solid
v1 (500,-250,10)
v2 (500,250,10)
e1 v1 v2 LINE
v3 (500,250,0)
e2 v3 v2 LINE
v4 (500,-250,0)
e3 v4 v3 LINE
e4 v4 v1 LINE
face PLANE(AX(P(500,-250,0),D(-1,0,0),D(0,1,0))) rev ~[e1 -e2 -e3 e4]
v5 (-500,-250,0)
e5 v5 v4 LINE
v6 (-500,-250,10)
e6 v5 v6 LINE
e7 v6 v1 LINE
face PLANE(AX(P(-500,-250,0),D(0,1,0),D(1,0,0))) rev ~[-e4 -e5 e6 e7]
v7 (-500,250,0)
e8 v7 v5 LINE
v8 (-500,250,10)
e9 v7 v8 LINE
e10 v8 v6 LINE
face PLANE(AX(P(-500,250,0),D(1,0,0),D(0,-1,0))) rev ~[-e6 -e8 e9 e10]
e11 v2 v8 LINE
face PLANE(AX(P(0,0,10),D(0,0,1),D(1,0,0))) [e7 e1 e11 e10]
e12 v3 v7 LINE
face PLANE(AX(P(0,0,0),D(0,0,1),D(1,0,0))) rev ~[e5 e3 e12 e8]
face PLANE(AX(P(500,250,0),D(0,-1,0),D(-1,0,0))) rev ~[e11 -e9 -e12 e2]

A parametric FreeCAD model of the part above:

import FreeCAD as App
import Part
import Sketcher
from FreeCAD import Vector
Q = App.Units.Quantity

doc = App.newDocument("Part")
body = doc.addObject("PartDesign::Body", "Body")

# Sketch on XY plane
sketch1 = doc.addObject("Sketcher::SketchObject", "Sketch")
body.addObject(sketch1)
sketch1.AttachmentSupport = (doc.XY_Plane, [""])
sketch1.MapMode = "FlatFace"
sketch1.addGeometry(Part.LineSegment(Vector(500, -250, 0), Vector(500, 250, 0)), False)
sketch1.addGeometry(Part.LineSegment(Vector(500, 250, 0), Vector(-500, 250, 0)), False)
sketch1.addGeometry(Part.LineSegment(Vector(-500, 250, 0), Vector(-500, -250, 0)), False)
sketch1.addGeometry(Part.LineSegment(Vector(-500, -250, 0), Vector(500, -250, 0)), False)
sketch1.addConstraint(Sketcher.Constraint("Coincident", 0, 2, 1, 1))
sketch1.addConstraint(Sketcher.Constraint("Coincident", 1, 2, 2, 1))
sketch1.addConstraint(Sketcher.Constraint("Coincident", 2, 2, 3, 1))
sketch1.addConstraint(Sketcher.Constraint("Coincident", 3, 2, 0, 1))
sketch1.addConstraint(Sketcher.Constraint("Vertical", 0))
sketch1.addConstraint(Sketcher.Constraint("Horizontal", 1))
sketch1.addConstraint(Sketcher.Constraint("Vertical", 2))
sketch1.addConstraint(Sketcher.Constraint("Horizontal", 3))
sketch1.addConstraint(Sketcher.Constraint("Symmetric", 0, 2, 2, 2, -1, 1))
sketch1.addConstraint(Sketcher.Constraint("DistanceX", 1, 2, 1, 1, Q("1000 mm")))
sketch1.addConstraint(Sketcher.Constraint("DistanceY", 0, 1, 0, 2, Q("500 mm")))
pad1 = doc.addObject("PartDesign::Pad", "Pad")
body.addObject(pad1)
pad1.Profile = sketch1
pad1.Length = 10

doc.recompute()
